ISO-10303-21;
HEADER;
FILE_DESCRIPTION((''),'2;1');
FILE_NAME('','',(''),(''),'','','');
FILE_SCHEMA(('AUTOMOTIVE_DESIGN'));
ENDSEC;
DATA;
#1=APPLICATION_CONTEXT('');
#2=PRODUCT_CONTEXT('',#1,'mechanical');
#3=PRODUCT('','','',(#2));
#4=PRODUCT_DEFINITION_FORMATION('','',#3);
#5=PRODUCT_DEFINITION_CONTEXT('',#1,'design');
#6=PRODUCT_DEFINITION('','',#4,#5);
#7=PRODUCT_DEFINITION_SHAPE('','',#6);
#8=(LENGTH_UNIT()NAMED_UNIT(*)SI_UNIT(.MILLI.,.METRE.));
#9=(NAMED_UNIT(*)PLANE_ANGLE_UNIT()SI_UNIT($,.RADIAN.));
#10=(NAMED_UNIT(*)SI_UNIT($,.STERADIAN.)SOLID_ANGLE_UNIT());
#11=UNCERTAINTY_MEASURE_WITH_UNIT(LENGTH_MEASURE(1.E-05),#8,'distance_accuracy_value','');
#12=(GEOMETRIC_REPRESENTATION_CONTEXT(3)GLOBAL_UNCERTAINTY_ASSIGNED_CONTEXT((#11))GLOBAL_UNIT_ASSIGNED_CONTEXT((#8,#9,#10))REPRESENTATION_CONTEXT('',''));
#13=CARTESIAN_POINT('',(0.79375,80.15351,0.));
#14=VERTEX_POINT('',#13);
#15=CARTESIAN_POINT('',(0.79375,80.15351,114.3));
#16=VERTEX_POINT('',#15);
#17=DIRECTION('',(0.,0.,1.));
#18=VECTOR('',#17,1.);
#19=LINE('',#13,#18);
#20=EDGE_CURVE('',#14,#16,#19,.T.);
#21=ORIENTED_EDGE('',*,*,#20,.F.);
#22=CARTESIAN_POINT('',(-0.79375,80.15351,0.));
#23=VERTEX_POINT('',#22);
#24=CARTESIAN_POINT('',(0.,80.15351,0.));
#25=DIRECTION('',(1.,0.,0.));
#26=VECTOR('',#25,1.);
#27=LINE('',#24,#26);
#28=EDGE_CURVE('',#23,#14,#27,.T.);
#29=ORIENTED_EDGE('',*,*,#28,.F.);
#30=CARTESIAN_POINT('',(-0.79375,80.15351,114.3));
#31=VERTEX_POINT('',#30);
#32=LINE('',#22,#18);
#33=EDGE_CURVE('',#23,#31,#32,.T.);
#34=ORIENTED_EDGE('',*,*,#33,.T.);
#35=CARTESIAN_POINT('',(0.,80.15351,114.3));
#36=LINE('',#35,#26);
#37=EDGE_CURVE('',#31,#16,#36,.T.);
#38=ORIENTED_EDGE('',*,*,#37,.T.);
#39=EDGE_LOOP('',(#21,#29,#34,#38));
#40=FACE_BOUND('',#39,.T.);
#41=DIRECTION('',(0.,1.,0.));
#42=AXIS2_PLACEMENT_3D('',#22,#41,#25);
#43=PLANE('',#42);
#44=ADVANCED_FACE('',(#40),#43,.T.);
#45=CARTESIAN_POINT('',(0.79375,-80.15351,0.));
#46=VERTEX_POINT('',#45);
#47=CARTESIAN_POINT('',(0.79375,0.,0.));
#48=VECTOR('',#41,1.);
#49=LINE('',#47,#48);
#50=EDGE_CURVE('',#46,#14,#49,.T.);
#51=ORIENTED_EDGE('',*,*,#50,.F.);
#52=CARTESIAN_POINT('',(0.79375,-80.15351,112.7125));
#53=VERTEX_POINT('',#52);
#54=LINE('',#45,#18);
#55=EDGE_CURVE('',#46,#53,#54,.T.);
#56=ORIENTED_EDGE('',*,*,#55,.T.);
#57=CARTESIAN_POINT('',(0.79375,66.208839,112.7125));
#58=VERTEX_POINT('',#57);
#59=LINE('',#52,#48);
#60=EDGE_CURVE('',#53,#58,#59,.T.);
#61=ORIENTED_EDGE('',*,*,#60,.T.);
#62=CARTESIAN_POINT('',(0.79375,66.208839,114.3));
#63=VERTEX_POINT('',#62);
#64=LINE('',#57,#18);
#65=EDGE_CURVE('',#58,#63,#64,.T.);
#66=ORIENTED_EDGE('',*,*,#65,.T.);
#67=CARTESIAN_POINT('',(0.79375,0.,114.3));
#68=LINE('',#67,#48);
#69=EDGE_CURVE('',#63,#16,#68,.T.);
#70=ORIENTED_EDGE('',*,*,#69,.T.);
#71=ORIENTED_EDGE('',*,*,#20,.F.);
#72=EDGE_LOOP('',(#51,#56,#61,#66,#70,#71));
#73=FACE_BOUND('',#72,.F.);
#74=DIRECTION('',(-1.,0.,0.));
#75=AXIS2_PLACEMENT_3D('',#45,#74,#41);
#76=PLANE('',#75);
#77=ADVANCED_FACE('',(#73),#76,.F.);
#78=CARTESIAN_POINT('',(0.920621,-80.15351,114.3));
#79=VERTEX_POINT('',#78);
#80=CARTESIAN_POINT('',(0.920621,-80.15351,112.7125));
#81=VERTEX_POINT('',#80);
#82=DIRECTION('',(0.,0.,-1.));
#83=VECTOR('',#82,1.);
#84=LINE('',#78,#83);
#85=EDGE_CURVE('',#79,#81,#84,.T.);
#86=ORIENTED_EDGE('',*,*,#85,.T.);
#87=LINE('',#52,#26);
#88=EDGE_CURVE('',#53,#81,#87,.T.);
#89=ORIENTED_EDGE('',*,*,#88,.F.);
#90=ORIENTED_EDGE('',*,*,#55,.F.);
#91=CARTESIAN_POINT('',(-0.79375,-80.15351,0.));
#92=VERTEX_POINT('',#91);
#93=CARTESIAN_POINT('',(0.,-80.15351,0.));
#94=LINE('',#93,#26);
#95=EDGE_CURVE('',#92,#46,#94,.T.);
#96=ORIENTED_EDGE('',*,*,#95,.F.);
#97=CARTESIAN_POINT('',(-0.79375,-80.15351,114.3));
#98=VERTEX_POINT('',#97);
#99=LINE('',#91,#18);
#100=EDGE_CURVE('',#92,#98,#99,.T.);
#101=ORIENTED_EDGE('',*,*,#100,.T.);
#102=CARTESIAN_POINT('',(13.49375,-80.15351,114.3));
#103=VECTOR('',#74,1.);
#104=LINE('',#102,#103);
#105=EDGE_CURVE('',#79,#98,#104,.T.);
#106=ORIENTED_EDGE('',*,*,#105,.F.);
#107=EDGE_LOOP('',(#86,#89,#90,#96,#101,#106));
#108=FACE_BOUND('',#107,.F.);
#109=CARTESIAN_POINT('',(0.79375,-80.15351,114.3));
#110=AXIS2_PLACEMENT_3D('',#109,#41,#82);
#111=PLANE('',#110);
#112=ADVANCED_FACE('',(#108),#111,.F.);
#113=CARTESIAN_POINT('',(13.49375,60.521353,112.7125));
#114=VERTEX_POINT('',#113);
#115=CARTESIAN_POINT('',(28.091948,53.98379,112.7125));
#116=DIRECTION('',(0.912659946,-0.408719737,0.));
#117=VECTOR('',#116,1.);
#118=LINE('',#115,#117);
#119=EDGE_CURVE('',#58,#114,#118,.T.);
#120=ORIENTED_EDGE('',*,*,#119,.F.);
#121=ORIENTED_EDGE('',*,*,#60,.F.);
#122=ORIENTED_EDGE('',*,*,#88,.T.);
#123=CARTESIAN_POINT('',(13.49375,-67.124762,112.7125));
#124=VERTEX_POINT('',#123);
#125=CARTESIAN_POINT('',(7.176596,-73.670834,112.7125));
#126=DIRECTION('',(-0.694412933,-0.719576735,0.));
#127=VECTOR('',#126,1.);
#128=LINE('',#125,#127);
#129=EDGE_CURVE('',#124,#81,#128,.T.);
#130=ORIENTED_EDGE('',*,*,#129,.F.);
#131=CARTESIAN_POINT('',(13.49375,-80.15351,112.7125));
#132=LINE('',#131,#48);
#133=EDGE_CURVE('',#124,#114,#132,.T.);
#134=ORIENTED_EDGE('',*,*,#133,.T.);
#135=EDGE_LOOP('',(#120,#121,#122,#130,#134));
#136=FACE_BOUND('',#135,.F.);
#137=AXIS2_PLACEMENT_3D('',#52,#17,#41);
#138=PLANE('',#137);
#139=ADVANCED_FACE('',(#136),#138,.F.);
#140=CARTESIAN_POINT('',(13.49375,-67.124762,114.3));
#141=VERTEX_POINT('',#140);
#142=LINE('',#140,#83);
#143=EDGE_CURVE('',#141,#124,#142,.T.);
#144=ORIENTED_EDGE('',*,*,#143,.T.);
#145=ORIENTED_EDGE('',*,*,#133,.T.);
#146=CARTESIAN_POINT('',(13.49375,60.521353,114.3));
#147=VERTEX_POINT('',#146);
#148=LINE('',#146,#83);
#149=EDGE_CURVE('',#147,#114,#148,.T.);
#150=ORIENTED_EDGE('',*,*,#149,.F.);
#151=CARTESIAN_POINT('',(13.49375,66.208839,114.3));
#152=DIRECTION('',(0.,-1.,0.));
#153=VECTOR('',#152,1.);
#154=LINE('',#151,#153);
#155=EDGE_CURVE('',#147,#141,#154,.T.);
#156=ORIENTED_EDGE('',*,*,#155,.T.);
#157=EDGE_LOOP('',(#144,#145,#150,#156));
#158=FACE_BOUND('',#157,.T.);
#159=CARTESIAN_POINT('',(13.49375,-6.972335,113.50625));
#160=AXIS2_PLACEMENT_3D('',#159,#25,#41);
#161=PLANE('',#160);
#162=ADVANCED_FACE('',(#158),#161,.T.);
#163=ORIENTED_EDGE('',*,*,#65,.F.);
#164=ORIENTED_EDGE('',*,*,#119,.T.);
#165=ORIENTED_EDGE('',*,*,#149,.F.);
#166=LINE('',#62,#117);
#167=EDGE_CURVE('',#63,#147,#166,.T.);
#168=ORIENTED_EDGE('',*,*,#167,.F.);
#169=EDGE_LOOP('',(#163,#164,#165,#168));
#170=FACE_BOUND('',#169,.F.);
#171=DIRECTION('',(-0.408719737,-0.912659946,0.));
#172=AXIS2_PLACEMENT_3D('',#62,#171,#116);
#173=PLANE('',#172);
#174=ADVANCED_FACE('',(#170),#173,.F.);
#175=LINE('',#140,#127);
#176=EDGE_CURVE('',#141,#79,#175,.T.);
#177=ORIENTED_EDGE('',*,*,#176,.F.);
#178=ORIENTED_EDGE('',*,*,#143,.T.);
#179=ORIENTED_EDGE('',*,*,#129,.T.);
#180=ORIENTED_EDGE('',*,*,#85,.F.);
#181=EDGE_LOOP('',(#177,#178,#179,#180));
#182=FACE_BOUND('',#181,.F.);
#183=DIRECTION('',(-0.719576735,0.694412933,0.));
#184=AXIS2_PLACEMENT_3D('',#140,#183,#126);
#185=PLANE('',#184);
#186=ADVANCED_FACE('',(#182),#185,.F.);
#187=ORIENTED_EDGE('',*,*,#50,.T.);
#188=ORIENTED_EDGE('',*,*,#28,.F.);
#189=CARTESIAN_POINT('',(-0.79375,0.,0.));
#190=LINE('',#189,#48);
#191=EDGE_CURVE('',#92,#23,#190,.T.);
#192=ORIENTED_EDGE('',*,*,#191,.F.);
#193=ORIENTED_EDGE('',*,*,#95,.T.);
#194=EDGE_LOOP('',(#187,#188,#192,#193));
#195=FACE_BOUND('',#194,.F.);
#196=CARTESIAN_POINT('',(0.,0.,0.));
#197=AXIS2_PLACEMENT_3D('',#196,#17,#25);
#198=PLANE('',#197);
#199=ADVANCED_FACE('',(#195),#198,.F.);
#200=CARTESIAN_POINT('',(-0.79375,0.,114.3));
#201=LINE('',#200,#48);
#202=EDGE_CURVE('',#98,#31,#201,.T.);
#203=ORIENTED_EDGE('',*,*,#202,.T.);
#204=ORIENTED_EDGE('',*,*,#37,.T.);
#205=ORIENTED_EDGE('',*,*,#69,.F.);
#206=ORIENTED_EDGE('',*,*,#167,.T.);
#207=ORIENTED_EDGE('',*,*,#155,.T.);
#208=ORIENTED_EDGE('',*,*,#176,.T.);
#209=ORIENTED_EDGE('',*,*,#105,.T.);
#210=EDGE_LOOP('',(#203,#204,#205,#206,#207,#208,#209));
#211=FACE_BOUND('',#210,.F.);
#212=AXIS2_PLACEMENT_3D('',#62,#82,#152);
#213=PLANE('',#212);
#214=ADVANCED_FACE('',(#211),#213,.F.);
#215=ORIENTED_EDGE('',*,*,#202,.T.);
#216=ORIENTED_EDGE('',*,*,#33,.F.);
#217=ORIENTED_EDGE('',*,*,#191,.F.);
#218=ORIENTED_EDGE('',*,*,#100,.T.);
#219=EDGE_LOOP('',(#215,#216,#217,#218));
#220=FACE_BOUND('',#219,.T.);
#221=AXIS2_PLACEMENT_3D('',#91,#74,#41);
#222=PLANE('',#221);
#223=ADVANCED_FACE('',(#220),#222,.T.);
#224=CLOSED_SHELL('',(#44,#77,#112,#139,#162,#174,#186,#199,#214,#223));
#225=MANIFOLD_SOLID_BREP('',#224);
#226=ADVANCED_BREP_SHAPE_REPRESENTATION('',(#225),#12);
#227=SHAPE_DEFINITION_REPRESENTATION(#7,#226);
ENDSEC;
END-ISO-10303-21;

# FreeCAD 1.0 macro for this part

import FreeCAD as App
import Part
import Sketcher
from FreeCAD import Vector
Q = App.Units.Quantity


def add_polygon(sketch, points):
    """Adds a closed chain of lines whose ends are joined by coincident constraints."""
    first, n = sketch.GeometryCount, len(points)
    for a, b in zip(points, points[1:] + points[:1]):
        sketch.addGeometry(Part.LineSegment(App.Vector(*a, 0), App.Vector(*b, 0)), False)
    for i in range(n):
        sketch.addConstraint(Sketcher.Constraint("Coincident", first + i, 2, first + (i + 1) % n, 1))

doc = App.newDocument("Part")
body = doc.addObject("PartDesign::Body", "Body")

# Sketch on XY plane
sketch1 = body.newObject("Sketcher::SketchObject", "Sketch")
sketch1.AttachmentSupport = (doc.getObject("XY_Plane"), [""])
sketch1.MapMode = "FlatFace"
add_polygon(sketch1, [(-0.8, 80.2), (-0.8, -80.2), (0.8, -80.2), (0.8, 80.2)])  # lines 0-3
sketch1.addConstraint([
    Sketcher.Constraint("Vertical", 0),
    Sketcher.Constraint("Horizontal", 1),
    Sketcher.Constraint("Vertical", 2),
    Sketcher.Constraint("Horizontal", 3),
    Sketcher.Constraint("Symmetric", 0, 2, 2, 2, -1, 1),
    Sketcher.Constraint("DistanceX", 1, 1, 1, 2, Q("0.0625 in")),
    Sketcher.Constraint("DistanceY", 0, 2, 0, 1, Q("6.3113 in")),
])
pad1 = body.newObject("PartDesign::Pad", "Pad")
pad1.Profile = sketch1
pad1.Length = Q("4.5 in")

# Sketch on YZ plane
sketch2 = body.newObject("Sketcher::SketchObject", "Sketch001")
sketch2.AttachmentSupport = (doc.getObject("YZ_Plane"), [""])
sketch2.MapMode = "FlatFace"
sketch2.AttachmentOffset = App.Placement(Vector(0, 0, 0.03125 * 25.4), App.Rotation())
add_polygon(sketch2, [(-80.2, 114.3), (-80.2, 112.7), (66.2, 112.7), (66.2, 114.3)])  # lines 0-3
sketch2.addConstraint([
    Sketcher.Constraint("Vertical", 0),
    Sketcher.Constraint("Horizontal", 1),
    Sketcher.Constraint("Vertical", 2),
    Sketcher.Constraint("Horizontal", 3),
    Sketcher.Constraint("DistanceY", -1, 1, 2, 2, Q("4.5 in")),
    Sketcher.Constraint("DistanceY", 0, 2, 0, 1, Q("0.0625 in")),
    Sketcher.Constraint("DistanceX", 1, 1, 1, 2, 146.362349),
    Sketcher.Constraint("DistanceX", 0, 2, -1, 1, 80.15351),
])
pad2 = body.newObject("PartDesign::Pad", "Pad001")
pad2.Profile = sketch2
pad2.Length = Q("0.5 in")

# Sketch on XY plane
sketch3 = body.newObject("Sketcher::SketchObject", "Sketch002")
sketch3.AttachmentSupport = (doc.getObject("XY_Plane"), [""])
sketch3.MapMode = "FlatFace"
sketch3.AttachmentOffset = App.Placement(Vector(0, 0, 4.5 * 25.4), App.Rotation())
add_polygon(sketch3, [(13, 66), (1, 66), (13, 61)])  # lines 0-2
add_polygon(sketch3, [(13, -67), (1, -80), (13, -80)])  # lines 3-5
sketch3.addConstraint([
    Sketcher.Constraint("Horizontal", 0),
    Sketcher.Constraint("Vertical", 2),
    Sketcher.Constraint("Horizontal", 4),
    Sketcher.Constraint("Vertical", 5),
    Sketcher.Constraint("Vertical", 2, 2, 4, 2),
    Sketcher.Constraint("DistanceX", 0, 2, 0, 1, Q("0.5 in")),
    Sketcher.Constraint("DistanceX", -1, 1, 0, 2, Q("0.03125 in")),
    Sketcher.Constraint("DistanceX", 4, 1, 4, 2, 12.573129),
    Sketcher.Constraint("DistanceY", 5, 2, 2, 2, 133.333601),
    Sketcher.Constraint("Distance", 1, 13.915369),
    Sketcher.Constraint("DistanceY", 5, 1, 5, 2, 13.028748),
    Sketcher.Constraint("DistanceY", -1, 1, 0, 2, 66.208839),
])
pocket1 = body.newObject("PartDesign::Pocket", "Pocket")
pocket1.Profile = sketch3
pocket1.Length = Q("1 in")

doc.recompute()
